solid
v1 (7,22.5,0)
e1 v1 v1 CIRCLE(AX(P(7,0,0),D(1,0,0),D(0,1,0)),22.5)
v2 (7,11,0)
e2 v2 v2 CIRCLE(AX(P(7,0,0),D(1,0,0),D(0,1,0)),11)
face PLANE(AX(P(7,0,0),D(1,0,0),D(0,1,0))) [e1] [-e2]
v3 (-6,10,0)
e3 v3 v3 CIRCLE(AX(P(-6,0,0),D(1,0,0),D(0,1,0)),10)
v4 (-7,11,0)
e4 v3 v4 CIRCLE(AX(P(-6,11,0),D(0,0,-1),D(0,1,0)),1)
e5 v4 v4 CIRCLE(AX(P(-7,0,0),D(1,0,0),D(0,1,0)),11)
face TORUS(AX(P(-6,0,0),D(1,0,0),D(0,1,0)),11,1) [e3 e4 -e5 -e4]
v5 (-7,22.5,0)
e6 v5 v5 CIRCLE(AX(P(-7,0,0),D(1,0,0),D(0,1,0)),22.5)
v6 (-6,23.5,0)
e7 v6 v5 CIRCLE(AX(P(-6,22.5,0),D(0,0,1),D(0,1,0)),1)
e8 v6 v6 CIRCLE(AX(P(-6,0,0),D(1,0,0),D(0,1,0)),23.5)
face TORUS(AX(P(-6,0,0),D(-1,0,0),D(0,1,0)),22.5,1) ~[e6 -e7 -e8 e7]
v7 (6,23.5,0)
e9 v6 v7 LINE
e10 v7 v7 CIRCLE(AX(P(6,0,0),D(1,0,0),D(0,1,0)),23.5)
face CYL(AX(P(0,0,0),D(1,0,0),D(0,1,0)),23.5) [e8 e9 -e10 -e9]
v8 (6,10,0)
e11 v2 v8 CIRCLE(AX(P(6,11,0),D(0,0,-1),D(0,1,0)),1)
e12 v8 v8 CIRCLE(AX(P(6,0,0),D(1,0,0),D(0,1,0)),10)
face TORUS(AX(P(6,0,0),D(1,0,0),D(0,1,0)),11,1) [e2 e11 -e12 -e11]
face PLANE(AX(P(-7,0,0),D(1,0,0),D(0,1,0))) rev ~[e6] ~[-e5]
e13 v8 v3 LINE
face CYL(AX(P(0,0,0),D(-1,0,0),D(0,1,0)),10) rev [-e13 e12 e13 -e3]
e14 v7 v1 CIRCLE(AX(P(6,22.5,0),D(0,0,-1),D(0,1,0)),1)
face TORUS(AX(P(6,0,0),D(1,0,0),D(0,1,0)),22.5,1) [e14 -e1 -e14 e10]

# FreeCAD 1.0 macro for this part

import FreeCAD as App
import Part
import Sketcher
from FreeCAD import Vector


def edges_at(feature, points):
    """Names of the edges that pass closest to the given points."""
    edges = feature.Shape.Edges
    near = lambda p: min(range(len(edges)), key=lambda i: edges[i].distToShape(Part.Vertex(*p))[0])
    return sorted({f"Edge{near(p) + 1}" for p in points})

doc = App.newDocument("Part")
params = doc.addObject("Spreadsheet::Sheet", "Params")
for row, (alias, value) in enumerate([
    ("sketch1_diameter", "47 mm"),
    ("sketch1_diameter2", "20 mm"),
    ("pad1_length", "14 mm"),
    ("fillet_radius", "1 mm"),
], start=1):
    params.set(f"A{row}", alias)
    params.set(f"B{row}", "=" + value)
    params.setAlias(f"B{row}", alias)

body = doc.addObject("PartDesign::Body", "Body")

sketch1 = doc.addObject("Sketcher::SketchObject", "Sketch")
body.addObject(sketch1)
sketch1.AttachmentSupport = (doc.YZ_Plane, [""])
sketch1.MapMode = "FlatFace"
sketch1.addGeometry([
    Part.Circle(Vector(0, 0, 0), Vector(0, 0, 1), 24),
    Part.Circle(Vector(0, 0, 0), Vector(0, 0, 1), 10),
], False)
sketch1.addConstraint([
    Sketcher.Constraint("Coincident", 0, 3, -1, 1),
    Sketcher.Constraint("Coincident", 1, 3, -1, 1),
    Sketcher.Constraint("Diameter", 0, 47.0),
    Sketcher.Constraint("Diameter", 1, 20.0),
])
sketch1.setExpression("Constraints[2]", "Params.sketch1_diameter")
sketch1.setExpression("Constraints[3]", "Params.sketch1_diameter2")
pad1 = doc.addObject("PartDesign::Pad", "Pad")
body.addObject(pad1)
pad1.Profile = sketch1
pad1.setExpression("Length", "Params.pad1_length")
pad1.Midplane = True
doc.recompute()

fillet = doc.addObject("PartDesign::Fillet", "Fillet")
body.addObject(fillet)
fillet.Base = (pad1, edges_at(pad1, [
    (7, -23.5, 0),
    (7, -10, 0),
    (-7, -23.5, 0),
    (-7, -10, 0),
]))
fillet.setExpression("Radius", "Params.fillet_radius")

doc.recompute()
